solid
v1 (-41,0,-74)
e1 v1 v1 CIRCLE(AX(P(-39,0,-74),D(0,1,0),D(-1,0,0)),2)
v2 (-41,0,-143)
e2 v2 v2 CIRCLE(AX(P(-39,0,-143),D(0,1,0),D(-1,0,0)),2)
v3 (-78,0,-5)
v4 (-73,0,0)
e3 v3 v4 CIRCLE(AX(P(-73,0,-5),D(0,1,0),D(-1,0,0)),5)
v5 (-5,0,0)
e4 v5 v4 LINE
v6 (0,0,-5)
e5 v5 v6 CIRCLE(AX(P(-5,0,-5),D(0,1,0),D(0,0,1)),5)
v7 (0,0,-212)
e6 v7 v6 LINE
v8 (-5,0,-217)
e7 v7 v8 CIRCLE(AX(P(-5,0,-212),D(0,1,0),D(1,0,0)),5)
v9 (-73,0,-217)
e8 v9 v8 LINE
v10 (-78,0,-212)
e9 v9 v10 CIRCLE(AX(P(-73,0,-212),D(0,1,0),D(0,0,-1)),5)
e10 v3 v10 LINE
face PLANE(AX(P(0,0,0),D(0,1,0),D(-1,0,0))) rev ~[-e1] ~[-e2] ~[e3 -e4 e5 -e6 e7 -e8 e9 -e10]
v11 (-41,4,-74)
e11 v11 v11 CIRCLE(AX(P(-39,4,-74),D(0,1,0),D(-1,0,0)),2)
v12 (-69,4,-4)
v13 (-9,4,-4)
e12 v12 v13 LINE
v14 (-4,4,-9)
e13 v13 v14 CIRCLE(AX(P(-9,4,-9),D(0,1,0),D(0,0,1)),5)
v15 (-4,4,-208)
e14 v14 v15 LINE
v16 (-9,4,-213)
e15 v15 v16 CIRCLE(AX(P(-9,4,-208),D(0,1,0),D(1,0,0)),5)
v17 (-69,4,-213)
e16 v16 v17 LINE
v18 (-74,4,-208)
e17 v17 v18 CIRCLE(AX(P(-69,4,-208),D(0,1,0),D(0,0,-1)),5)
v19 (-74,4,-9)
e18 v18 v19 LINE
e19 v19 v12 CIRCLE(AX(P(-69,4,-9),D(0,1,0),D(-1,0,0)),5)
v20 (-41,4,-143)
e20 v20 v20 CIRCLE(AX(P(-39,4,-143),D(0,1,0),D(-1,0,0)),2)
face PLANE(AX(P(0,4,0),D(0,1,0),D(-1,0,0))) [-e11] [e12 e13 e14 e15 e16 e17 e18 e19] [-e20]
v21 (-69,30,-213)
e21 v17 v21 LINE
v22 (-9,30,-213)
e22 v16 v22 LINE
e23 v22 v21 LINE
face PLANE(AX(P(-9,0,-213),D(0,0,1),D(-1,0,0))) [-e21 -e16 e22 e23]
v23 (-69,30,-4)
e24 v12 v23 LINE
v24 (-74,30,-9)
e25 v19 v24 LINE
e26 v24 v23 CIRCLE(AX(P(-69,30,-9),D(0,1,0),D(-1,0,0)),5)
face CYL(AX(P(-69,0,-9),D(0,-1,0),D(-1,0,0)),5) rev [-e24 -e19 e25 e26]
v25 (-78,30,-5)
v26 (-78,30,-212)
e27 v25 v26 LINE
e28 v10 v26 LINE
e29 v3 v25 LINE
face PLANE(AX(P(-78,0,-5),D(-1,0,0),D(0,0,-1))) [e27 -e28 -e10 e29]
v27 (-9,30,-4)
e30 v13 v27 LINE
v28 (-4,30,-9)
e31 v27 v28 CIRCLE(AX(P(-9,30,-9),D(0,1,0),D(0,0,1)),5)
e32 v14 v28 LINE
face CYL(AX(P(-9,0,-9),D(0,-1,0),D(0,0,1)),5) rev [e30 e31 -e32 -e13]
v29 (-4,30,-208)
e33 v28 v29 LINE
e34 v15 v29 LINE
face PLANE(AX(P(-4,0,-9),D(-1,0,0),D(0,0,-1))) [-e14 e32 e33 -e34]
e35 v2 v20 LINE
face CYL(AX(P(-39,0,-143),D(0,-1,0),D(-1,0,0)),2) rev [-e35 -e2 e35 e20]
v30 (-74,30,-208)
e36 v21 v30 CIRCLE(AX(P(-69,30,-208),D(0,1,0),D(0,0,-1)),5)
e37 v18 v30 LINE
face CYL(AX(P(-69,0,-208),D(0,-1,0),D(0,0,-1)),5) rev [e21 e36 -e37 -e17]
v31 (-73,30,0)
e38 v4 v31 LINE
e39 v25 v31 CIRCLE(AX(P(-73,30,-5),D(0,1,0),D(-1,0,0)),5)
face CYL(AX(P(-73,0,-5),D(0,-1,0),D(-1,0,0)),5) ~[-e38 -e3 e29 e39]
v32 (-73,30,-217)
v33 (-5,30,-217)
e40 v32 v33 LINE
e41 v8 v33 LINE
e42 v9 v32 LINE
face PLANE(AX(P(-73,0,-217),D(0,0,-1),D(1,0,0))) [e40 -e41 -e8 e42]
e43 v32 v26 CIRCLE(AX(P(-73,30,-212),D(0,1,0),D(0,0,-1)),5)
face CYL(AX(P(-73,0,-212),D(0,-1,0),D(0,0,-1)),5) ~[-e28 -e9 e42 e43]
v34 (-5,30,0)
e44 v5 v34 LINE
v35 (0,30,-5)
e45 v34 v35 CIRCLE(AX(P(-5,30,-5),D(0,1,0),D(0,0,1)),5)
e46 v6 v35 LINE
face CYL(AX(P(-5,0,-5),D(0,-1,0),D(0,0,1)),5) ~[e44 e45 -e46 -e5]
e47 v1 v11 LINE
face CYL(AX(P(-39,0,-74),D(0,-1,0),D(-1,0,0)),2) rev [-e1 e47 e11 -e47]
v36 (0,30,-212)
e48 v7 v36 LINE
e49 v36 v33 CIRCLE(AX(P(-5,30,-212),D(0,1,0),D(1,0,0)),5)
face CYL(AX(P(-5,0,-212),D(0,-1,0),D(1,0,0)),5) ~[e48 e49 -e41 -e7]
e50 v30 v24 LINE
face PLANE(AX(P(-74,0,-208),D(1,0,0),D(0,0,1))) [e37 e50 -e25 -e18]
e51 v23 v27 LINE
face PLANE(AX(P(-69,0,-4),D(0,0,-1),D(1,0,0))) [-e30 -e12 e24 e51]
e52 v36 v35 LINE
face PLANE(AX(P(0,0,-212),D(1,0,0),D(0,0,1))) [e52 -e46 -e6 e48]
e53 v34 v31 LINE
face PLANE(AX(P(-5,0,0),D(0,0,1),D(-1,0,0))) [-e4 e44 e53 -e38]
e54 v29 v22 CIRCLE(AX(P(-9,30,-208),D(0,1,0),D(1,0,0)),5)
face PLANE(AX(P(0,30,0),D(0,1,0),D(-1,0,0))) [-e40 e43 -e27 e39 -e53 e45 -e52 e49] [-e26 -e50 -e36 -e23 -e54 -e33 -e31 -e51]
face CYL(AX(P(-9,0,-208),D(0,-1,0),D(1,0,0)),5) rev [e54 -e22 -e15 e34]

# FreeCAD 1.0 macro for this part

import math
import FreeCAD as App
import Part
import Sketcher
from FreeCAD import Vector
Q = App.Units.Quantity

doc = App.newDocument("Part")
body = doc.addObject("PartDesign::Body", "Body")

# Sketch on XZ plane
sketch1 = body.newObject("Sketcher::SketchObject", "Sketch")
sketch1.AttachmentSupport = (doc.getObject("XZ_Plane"), [""])
sketch1.MapMode = "FlatFace"
sketch1.addGeometry([
    Part.LineSegment(Vector(-73, 0, 0), Vector(-5, 0, 0)),  # 0
    Part.ArcOfCircle(Part.Circle(Vector(-5, -5, 0), Vector(0, 0, 1), 5), math.radians(0), math.radians(90)),  # 1
    Part.LineSegment(Vector(0, -5, 0), Vector(0, -212, 0)),  # 2
    Part.ArcOfCircle(Part.Circle(Vector(-5, -212, 0), Vector(0, 0, 1), 5), math.radians(-90), math.radians(0)),  # 3
    Part.LineSegment(Vector(-5, -217, 0), Vector(-73, -217, 0)),  # 4
    Part.ArcOfCircle(Part.Circle(Vector(-73, -212, 0), Vector(0, 0, 1), 5), math.radians(180), math.radians(270)),  # 5
    Part.LineSegment(Vector(-78, -212, 0), Vector(-78, -5, 0)),  # 6
    Part.ArcOfCircle(Part.Circle(Vector(-73, -5, 0), Vector(0, 0, 1), 5), math.radians(90), math.radians(180)),  # 7
    Part.LineSegment(Vector(-9, -4, 0), Vector(-69, -4, 0)),  # 8
    Part.ArcOfCircle(Part.Circle(Vector(-69, -9, 0), Vector(0, 0, 1), 5), math.radians(90), math.radians(180)),  # 9
    Part.LineSegment(Vector(-74, -9, 0), Vector(-74, -208, 0)),  # 10
    Part.ArcOfCircle(Part.Circle(Vector(-69, -208, 0), Vector(0, 0, 1), 5), math.radians(180), math.radians(270)),  # 11
    Part.LineSegment(Vector(-69, -213, 0), Vector(-9, -213, 0)),  # 12
    Part.ArcOfCircle(Part.Circle(Vector(-9, -208, 0), Vector(0, 0, 1), 5), math.radians(-90), math.radians(0)),  # 13
    Part.LineSegment(Vector(-4, -208, 0), Vector(-4, -9, 0)),  # 14
    Part.ArcOfCircle(Part.Circle(Vector(-9, -9, 0), Vector(0, 0, 1), 5), math.radians(0), math.radians(90)),  # 15
], False)
sketch1.addConstraint([
    Sketcher.Constraint("Tangent", 0, 2, 1, 2),
    Sketcher.Constraint("Tangent", 1, 1, 2, 1),
    Sketcher.Constraint("Tangent", 2, 2, 3, 2),
    Sketcher.Constraint("Tangent", 3, 1, 4, 1),
    Sketcher.Constraint("Tangent", 4, 2, 5, 2),
    Sketcher.Constraint("Tangent", 5, 1, 6, 1),
    Sketcher.Constraint("Tangent", 6, 2, 7, 2),
    Sketcher.Constraint("Tangent", 7, 1, 0, 1),
    Sketcher.Constraint("Tangent", 8, 2, 9, 1),
    Sketcher.Constraint("Tangent", 9, 2, 10, 1),
    Sketcher.Constraint("Tangent", 10, 2, 11, 1),
    Sketcher.Constraint("Tangent", 11, 2, 12, 1),
    Sketcher.Constraint("Tangent", 12, 2, 13, 1),
    Sketcher.Constraint("Tangent", 13, 2, 14, 1),
    Sketcher.Constraint("Tangent", 14, 2, 15, 1),
    Sketcher.Constraint("Tangent", 15, 2, 8, 1),
    Sketcher.Constraint("Horizontal", 0),
    Sketcher.Constraint("Vertical", 2),
    Sketcher.Constraint("Horizontal", 4),
    Sketcher.Constraint("Vertical", 6),
    Sketcher.Constraint("Horizontal", 8),
    Sketcher.Constraint("Vertical", 10),
    Sketcher.Constraint("Horizontal", 12),
    Sketcher.Constraint("Vertical", 14),
    Sketcher.Constraint("Equal", 1, 3),
    Sketcher.Constraint("Equal", 3, 5),
    Sketcher.Constraint("Equal", 5, 7),
    Sketcher.Constraint("Equal", 7, 9),
    Sketcher.Constraint("Equal", 9, 11),
    Sketcher.Constraint("Equal", 11, 13),
    Sketcher.Constraint("Equal", 13, 15),
    Sketcher.Constraint("PointOnObject", 0, 2, -1),
    Sketcher.Constraint("PointOnObject", 1, 1, -2),
    Sketcher.Constraint("Radius", 1, Q("5 mm")),
    Sketcher.Constraint("DistanceX", 9, 3, -1, 1, Q("69 mm")),
    Sketcher.Constraint("DistanceY", 3, 1, -1, 1, Q("217 mm")),
    Sketcher.Constraint("DistanceX", 5, 1, -1, 1, Q("78 mm")),
    Sketcher.Constraint("DistanceY", 8, 2, -1, 1, Q("4 mm")),
    Sketcher.Constraint("DistanceX", 13, 2, -1, 1, Q("4 mm")),
    Sketcher.Constraint("DistanceY", 5, 3, 11, 3, Q("4 mm")),
])
pad1 = body.newObject("PartDesign::Pad", "Pad")
pad1.Profile = sketch1
pad1.Length = 30
pad1.Reversed = True

# Sketch on XZ plane
sketch2 = body.newObject("Sketcher::SketchObject", "Sketch001")
sketch2.AttachmentSupport = (doc.getObject("XZ_Plane"), [""])
sketch2.MapMode = "FlatFace"
sketch2.addGeometry([
    Part.ArcOfCircle(Part.Circle(Vector(-69, -9, 0), Vector(0, 0, 1), 5), math.radians(90), math.radians(180)),  # 0
    Part.LineSegment(Vector(-69, -4, 0), Vector(-9, -4, 0)),  # 1
    Part.ArcOfCircle(Part.Circle(Vector(-9, -9, 0), Vector(0, 0, 1), 5), math.radians(0), math.radians(90)),  # 2
    Part.LineSegment(Vector(-4, -9, 0), Vector(-4, -208, 0)),  # 3
    Part.ArcOfCircle(Part.Circle(Vector(-9, -208, 0), Vector(0, 0, 1), 5), math.radians(-90), math.radians(0)),  # 4
    Part.LineSegment(Vector(-9, -213, 0), Vector(-69, -213, 0)),  # 5
    Part.ArcOfCircle(Part.Circle(Vector(-69, -208, 0), Vector(0, 0, 1), 5), math.radians(180), math.radians(270)),  # 6
    Part.LineSegment(Vector(-74, -208, 0), Vector(-74, -9, 0)),  # 7
], False)
sketch2.addConstraint([
    Sketcher.Constraint("Tangent", 0, 1, 1, 1),
    Sketcher.Constraint("Tangent", 1, 2, 2, 2),
    Sketcher.Constraint("Tangent", 2, 1, 3, 1),
    Sketcher.Constraint("Tangent", 3, 2, 4, 2),
    Sketcher.Constraint("Tangent", 4, 1, 5, 1),
    Sketcher.Constraint("Tangent", 5, 2, 6, 2),
    Sketcher.Constraint("Tangent", 6, 1, 7, 1),
    Sketcher.Constraint("Tangent", 7, 2, 0, 2),
    Sketcher.Constraint("Horizontal", 1),
    Sketcher.Constraint("Vertical", 3),
    Sketcher.Constraint("Horizontal", 5),
    Sketcher.Constraint("Vertical", 7),
    Sketcher.Constraint("Equal", 0, 2),
    Sketcher.Constraint("Equal", 2, 4),
    Sketcher.Constraint("Equal", 4, 6),
    Sketcher.Constraint("Radius", 0, Q("5 mm")),
    Sketcher.Constraint("DistanceX", 0, 3, -1, 1, Q("69 mm")),
    Sketcher.Constraint("DistanceY", 0, 1, -1, 1, Q("4 mm")),
    Sketcher.Constraint("DistanceX", 2, 1, -1, 1, Q("4 mm")),
    Sketcher.Constraint("DistanceY", 3, 2, 3, 1, Q("199 mm")),
])
pad2 = body.newObject("PartDesign::Pad", "Pad001")
pad2.Profile = sketch2
pad2.Length = 4
pad2.Reversed = True

# Sketch on XZ plane
sketch3 = body.newObject("Sketcher::SketchObject", "Sketch002")
sketch3.AttachmentSupport = (doc.getObject("XZ_Plane"), [""])
sketch3.MapMode = "FlatFace"
sketch3.addGeometry([
    Part.Circle(Vector(-39, -143, 0), Vector(0, 0, 1), 2),
    Part.Circle(Vector(-39, -74, 0), Vector(0, 0, 1), 2),
], False)
sketch3.addConstraint([
    Sketcher.Constraint("Equal", 0, 1),
    Sketcher.Constraint("Vertical", 0, 3, 1, 3),
    Sketcher.Constraint("Diameter", 0, Q("4 mm")),
    Sketcher.Constraint("DistanceY", 0, 3, 1, 3, Q("69 mm")),
    Sketcher.Constraint("DistanceX", 0, 3, -1, 1, Q("39 mm")),
    Sketcher.Constraint("DistanceY", 0, 3, -1, 1, Q("143 mm")),
])
pocket1 = body.newObject("PartDesign::Pocket", "Pocket")
pocket1.Profile = sketch3
pocket1.Length = 4

doc.recompute()
